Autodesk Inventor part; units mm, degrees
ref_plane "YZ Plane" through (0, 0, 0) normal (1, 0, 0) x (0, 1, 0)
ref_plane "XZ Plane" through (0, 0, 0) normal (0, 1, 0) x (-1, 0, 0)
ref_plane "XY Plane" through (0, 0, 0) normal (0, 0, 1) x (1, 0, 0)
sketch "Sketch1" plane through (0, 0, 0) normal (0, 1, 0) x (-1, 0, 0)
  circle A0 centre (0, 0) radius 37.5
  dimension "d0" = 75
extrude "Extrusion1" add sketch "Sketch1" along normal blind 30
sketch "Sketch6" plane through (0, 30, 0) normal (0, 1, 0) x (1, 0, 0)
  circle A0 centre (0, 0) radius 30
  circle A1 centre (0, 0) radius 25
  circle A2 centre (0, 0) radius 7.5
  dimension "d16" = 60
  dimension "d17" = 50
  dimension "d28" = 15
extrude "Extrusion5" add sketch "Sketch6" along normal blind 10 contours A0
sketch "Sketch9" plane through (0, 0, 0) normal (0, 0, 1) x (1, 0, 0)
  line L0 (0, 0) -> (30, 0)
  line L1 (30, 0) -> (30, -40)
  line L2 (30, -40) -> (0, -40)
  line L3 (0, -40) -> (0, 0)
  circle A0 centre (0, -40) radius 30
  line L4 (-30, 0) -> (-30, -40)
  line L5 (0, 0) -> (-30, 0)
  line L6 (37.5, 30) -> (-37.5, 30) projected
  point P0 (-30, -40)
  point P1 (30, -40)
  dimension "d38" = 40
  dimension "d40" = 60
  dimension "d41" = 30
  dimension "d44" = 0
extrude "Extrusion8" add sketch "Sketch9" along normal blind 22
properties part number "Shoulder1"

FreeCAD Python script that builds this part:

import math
import FreeCAD as App
import Part
import Sketcher
from FreeCAD import Vector

doc = App.newDocument("Part")
body = doc.addObject("PartDesign::Body", "Body")

# Sketch on XZ plane
sketch1 = body.newObject("Sketcher::SketchObject", "Sketch")
sketch1.AttachmentSupport = (doc.getObject("XZ_Plane"), [""])
sketch1.MapMode = "FlatFace"
sketch1.addGeometry(Part.Circle(Vector(0, 0, 0), Vector(0, 0, 1), 38), False)
sketch1.addConstraint(Sketcher.Constraint("Coincident", 0, 3, -1, 1))
sketch1.addConstraint(Sketcher.Constraint("Diameter", 0, 75.0))
pad1 = body.newObject("PartDesign::Pad", "Pad")
pad1.Profile = sketch1
pad1.Length = 30
pad1.Reversed = True

# Sketch on XZ plane
sketch2 = body.newObject("Sketcher::SketchObject", "Sketch001")
sketch2.AttachmentSupport = (doc.getObject("XZ_Plane"), [""])
sketch2.MapMode = "FlatFace"
sketch2.AttachmentOffset = App.Placement(Vector(0, 0, -30), App.Rotation())
sketch2.addGeometry(Part.Circle(Vector(0, 0, 0), Vector(0, 0, 1), 30), False)
sketch2.addGeometry(Part.Circle(Vector(0, 0, 0), Vector(0, 0, 1), 25), False)
sketch2.addConstraint(Sketcher.Constraint("Coincident", 0, 3, -1, 1))
sketch2.addConstraint(Sketcher.Constraint("Coincident", 1, 3, -1, 1))
sketch2.addConstraint(Sketcher.Constraint("Diameter", 0, 60.0))
sketch2.addConstraint(Sketcher.Constraint("Diameter", 1, 50.0))
pad2 = body.newObject("PartDesign::Pad", "Pad001")
pad2.Profile = sketch2
pad2.Length = 10
pad2.Reversed = True

# Sketch on XY plane
sketch3 = body.newObject("Sketcher::SketchObject", "Sketch002")
sketch3.AttachmentSupport = (doc.getObject("XY_Plane"), [""])
sketch3.MapMode = "FlatFace"
sketch3.addGeometry(Part.LineSegment(Vector(30, 0, 0), Vector(-30, 0, 0)), False)
sketch3.addGeometry(Part.LineSegment(Vector(-30, 0, 0), Vector(-30, -40, 0)), False)
sketch3.addGeometry(Part.ArcOfCircle(Part.Circle(Vector(0, -40, 0), Vector(0, 0, 1), 30), math.radians(180), math.radians(360)), False)
sketch3.addGeometry(Part.LineSegment(Vector(30, -40, 0), Vector(30, 0, 0)), False)
sketch3.addConstraint(Sketcher.Constraint("Coincident", 0, 2, 1, 1))
sketch3.addConstraint(Sketcher.Constraint("Tangent", 1, 2, 2, 1))
sketch3.addConstraint(Sketcher.Constraint("Tangent", 2, 2, 3, 1))
sketch3.addConstraint(Sketcher.Constraint("Coincident", 3, 2, 0, 1))
sketch3.addConstraint(Sketcher.Constraint("Horizontal", 0))
sketch3.addConstraint(Sketcher.Constraint("Vertical", 1))
sketch3.addConstraint(Sketcher.Constraint("Vertical", 3))
sketch3.addConstraint(Sketcher.Constraint("Symmetric", 0, 2, 3, 2, -1, 1))
sketch3.addConstraint(Sketcher.Constraint("Radius", 2, 30.0))
sketch3.addConstraint(Sketcher.Constraint("DistanceY", 1, 2, 1, 1, 40.0))
pad3 = body.newObject("PartDesign::Pad", "Pad002")
pad3.Profile = sketch3
pad3.Length = 22

doc.recompute()
